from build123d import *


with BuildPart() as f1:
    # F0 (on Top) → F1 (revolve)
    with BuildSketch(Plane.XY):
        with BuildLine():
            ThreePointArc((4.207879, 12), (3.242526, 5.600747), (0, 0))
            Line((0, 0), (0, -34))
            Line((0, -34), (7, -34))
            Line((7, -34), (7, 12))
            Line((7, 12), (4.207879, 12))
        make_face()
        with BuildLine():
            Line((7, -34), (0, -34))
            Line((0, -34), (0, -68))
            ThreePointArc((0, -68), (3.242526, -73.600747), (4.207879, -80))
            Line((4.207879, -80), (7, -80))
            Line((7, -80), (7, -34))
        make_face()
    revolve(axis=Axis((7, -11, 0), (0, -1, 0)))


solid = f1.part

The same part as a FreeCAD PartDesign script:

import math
import FreeCAD as App
import Part
import Sketcher
from FreeCAD import Vector

doc = App.newDocument("Part")
body = doc.addObject("PartDesign::Body", "Body")

# Sketch on XY plane
sketch1 = body.newObject("Sketcher::SketchObject", "Sketch")
sketch1.AttachmentSupport = (doc.getObject("XY_Plane"), [""])
sketch1.MapMode = "FlatFace"
sketch1.addGeometry(Part.ArcOfCircle(Part.Circle(Vector(-13.1, 11.3, 0), Vector(0, 0, 1), 17.4), math.radians(-41), math.radians(2)), False)
sketch1.addGeometry(Part.LineSegment(Vector(0, 0, 0), Vector(0, -68, 0)), False)
sketch1.addGeometry(Part.ArcOfCircle(Part.Circle(Vector(-13.1, -79.3, 0), Vector(0, 0, 1), 17.4), math.radians(-2), math.radians(41)), False)
sketch1.addGeometry(Part.LineSegment(Vector(4.2, -80, 0), Vector(7, -80, 0)), False)
sketch1.addGeometry(Part.LineSegment(Vector(7, -80, 0), Vector(7, 12, 0)), False)
sketch1.addGeometry(Part.LineSegment(Vector(7, 12, 0), Vector(4.2, 12, 0)), False)
sketch1.addGeometry(Part.LineSegment(Vector(7, 12, 0), Vector(7, -80, 0)), True)  # axis
sketch1.addConstraint(Sketcher.Constraint("Coincident", 0, 1, 1, 1))
sketch1.addConstraint(Sketcher.Constraint("Coincident", 1, 2, 2, 2))
sketch1.addConstraint(Sketcher.Constraint("Coincident", 2, 1, 3, 1))
sketch1.addConstraint(Sketcher.Constraint("Coincident", 3, 2, 4, 1))
sketch1.addConstraint(Sketcher.Constraint("Coincident", 4, 2, 5, 1))
sketch1.addConstraint(Sketcher.Constraint("Coincident", 5, 2, 0, 2))
sketch1.addConstraint(Sketcher.Constraint("Vertical", 1))
sketch1.addConstraint(Sketcher.Constraint("Horizontal", 3))
sketch1.addConstraint(Sketcher.Constraint("Vertical", 4))
sketch1.addConstraint(Sketcher.Constraint("Horizontal", 5))
sketch1.addConstraint(Sketcher.Constraint("Vertical", 6))
sketch1.addConstraint(Sketcher.Constraint("Coincident", 0, 1, -1, 1))
sketch1.addConstraint(Sketcher.Constraint("Coincident", 6, 1, 4, 2))
sketch1.addConstraint(Sketcher.Constraint("Equal", 0, 2))
sketch1.addConstraint(Sketcher.Constraint("Horizontal", 2, 1, 6, 2))
sketch1.addConstraint(Sketcher.Constraint("Vertical", 0, 3, 2, 3))
sketch1.addConstraint(Sketcher.Constraint("Vertical", 2, 1, 5, 2))
sketch1.addConstraint(Sketcher.Constraint("DistanceY", 1, 2, 1, 1, 68.0))
sketch1.addConstraint(Sketcher.Constraint("DistanceY", 4, 1, 4, 2, 92.0))
sketch1.addConstraint(Sketcher.Constraint("DistanceX", -1, 1, 3, 2, 7.0))
sketch1.addConstraint(Sketcher.Constraint("Radius", 0, 17.356125))
sketch1.addConstraint(Sketcher.Constraint("DistanceX", 3, 1, 3, 2, 2.792121))
revolution = body.newObject("PartDesign::Revolution", "Revolution")
revolution.Profile = sketch1
revolution.ReferenceAxis = (sketch1, ["Axis0"])
revolution.Angle = 360

doc.recompute()
